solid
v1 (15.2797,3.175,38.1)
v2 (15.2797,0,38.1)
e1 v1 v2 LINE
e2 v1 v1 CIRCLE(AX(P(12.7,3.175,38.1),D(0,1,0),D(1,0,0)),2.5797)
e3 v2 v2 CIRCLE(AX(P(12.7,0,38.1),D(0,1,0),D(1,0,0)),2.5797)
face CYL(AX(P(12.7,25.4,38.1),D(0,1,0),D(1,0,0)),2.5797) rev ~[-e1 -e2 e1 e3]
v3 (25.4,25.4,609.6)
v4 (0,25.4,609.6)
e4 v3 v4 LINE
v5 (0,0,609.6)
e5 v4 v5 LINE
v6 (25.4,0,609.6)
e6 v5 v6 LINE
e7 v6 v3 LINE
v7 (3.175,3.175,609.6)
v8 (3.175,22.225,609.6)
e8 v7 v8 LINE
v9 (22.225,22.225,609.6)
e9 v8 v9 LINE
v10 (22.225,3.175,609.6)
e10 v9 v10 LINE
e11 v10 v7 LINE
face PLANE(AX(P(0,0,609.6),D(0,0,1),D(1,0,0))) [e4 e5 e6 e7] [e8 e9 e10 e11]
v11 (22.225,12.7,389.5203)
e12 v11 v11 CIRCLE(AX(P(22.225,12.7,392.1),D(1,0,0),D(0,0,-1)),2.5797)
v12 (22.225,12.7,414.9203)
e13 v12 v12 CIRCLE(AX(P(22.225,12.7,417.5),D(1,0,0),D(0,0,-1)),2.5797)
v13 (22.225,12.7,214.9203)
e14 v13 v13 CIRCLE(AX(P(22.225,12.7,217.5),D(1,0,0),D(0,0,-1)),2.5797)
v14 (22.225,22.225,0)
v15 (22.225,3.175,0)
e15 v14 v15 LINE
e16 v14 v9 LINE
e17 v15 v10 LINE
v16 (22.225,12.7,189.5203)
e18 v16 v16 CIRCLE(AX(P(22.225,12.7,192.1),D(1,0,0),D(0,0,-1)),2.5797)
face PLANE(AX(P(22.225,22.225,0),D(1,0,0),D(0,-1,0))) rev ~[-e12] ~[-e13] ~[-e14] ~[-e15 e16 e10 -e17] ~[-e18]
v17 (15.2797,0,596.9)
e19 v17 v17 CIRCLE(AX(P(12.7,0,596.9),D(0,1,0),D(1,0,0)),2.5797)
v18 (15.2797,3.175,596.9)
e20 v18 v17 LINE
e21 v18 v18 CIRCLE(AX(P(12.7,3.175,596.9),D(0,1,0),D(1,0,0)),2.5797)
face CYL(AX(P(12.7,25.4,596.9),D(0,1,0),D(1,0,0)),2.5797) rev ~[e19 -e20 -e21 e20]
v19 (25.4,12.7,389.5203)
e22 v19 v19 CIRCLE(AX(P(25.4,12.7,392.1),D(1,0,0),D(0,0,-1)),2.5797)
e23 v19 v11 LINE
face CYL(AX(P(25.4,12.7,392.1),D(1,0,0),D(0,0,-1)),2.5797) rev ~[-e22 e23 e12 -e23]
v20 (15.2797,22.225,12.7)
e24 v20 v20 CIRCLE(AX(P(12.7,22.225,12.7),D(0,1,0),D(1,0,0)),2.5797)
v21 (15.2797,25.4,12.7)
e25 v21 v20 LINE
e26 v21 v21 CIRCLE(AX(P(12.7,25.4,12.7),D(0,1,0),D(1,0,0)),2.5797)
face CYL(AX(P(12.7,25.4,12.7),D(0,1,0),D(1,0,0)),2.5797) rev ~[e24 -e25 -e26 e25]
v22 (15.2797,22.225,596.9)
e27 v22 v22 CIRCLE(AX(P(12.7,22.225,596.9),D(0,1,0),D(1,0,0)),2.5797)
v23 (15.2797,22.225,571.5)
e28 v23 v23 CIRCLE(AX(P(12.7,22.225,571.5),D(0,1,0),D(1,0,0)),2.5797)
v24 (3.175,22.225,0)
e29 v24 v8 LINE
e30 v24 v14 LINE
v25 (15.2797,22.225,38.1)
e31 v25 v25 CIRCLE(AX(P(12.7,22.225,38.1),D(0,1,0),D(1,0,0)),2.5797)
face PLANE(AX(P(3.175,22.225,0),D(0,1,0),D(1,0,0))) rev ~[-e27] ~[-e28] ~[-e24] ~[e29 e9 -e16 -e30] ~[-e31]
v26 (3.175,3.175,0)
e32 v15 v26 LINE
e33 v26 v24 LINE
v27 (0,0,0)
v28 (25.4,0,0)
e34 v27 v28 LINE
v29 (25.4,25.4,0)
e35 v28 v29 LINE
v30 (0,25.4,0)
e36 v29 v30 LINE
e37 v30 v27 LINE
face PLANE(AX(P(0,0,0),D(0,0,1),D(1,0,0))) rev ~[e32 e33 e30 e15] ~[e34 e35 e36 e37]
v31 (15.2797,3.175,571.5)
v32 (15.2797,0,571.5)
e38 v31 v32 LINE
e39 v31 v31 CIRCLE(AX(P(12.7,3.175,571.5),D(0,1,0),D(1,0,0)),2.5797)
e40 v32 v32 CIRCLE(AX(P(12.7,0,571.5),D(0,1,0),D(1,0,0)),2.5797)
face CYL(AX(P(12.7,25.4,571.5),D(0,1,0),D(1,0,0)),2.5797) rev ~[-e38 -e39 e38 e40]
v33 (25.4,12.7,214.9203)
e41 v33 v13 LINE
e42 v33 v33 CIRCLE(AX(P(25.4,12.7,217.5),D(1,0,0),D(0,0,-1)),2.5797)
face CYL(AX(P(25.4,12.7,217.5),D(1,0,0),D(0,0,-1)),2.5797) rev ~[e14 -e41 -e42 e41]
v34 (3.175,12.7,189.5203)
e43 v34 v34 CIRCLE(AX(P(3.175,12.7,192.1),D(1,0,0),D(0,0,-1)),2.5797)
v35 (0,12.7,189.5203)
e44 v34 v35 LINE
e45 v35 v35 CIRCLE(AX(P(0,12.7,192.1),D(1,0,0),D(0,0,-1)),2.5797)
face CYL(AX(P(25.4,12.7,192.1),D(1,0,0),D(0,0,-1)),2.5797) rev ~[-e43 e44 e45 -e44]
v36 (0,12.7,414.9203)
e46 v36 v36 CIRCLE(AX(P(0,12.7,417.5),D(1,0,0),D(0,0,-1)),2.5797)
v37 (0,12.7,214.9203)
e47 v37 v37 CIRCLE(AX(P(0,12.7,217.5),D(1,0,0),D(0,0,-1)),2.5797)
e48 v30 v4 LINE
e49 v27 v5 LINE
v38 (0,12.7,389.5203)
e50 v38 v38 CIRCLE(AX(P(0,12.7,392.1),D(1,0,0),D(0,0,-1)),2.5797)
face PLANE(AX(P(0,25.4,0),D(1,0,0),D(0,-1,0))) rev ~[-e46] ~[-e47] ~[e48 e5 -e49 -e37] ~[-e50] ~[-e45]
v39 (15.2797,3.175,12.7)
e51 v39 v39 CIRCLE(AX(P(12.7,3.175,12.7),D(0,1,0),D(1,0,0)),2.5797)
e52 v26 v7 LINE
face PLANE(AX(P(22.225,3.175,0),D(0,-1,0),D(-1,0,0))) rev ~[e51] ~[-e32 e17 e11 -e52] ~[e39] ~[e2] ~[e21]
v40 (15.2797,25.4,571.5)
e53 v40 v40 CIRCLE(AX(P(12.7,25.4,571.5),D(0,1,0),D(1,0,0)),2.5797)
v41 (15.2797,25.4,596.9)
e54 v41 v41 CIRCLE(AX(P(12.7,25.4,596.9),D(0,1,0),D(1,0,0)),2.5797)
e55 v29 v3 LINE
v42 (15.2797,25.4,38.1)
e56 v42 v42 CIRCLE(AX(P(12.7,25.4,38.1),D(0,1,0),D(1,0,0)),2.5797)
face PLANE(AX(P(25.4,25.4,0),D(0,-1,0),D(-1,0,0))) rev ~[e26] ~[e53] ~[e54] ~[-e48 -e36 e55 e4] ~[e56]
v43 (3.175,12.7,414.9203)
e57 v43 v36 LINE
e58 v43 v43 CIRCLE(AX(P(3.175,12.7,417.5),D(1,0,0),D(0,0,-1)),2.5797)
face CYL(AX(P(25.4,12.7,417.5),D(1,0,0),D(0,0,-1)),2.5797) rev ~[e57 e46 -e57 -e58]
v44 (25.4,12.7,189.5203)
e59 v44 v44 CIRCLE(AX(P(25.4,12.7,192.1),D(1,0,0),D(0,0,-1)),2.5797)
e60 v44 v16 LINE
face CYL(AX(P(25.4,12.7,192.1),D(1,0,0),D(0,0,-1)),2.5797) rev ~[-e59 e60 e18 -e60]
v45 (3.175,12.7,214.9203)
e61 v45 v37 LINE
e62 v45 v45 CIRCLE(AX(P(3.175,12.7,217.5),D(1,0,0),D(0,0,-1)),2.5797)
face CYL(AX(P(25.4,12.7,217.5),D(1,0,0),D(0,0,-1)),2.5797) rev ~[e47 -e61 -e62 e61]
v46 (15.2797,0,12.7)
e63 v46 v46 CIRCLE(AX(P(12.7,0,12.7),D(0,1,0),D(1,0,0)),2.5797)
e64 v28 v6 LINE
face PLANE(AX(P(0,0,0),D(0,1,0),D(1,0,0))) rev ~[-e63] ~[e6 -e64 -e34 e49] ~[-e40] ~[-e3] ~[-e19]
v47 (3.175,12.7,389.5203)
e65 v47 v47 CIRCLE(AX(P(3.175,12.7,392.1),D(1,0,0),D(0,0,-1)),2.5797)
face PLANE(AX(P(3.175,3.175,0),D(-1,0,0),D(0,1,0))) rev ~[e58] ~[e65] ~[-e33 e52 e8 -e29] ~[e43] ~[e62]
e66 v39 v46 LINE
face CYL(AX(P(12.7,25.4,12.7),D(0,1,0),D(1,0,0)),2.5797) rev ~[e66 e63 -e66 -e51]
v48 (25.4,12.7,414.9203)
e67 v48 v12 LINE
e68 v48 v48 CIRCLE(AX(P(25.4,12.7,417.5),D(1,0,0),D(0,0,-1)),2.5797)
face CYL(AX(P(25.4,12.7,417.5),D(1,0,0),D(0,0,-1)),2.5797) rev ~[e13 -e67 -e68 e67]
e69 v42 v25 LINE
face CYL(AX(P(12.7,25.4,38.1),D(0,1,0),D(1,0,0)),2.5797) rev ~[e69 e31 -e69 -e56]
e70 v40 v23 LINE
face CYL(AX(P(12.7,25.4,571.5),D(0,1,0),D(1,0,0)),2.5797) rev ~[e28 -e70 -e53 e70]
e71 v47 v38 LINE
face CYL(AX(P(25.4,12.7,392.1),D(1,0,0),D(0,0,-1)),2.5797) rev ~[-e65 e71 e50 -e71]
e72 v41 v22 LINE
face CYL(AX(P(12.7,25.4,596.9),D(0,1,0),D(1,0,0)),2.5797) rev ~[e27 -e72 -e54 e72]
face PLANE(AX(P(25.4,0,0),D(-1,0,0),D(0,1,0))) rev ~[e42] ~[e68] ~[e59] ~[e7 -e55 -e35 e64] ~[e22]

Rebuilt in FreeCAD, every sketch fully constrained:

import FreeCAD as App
import Part
import Sketcher
Q = App.Units.Quantity


def add_polygon(sketch, points):
    """Adds a closed chain of lines whose ends are joined by coincident constraints."""
    first, n = sketch.GeometryCount, len(points)
    for a, b in zip(points, points[1:] + points[:1]):
        sketch.addGeometry(Part.LineSegment(App.Vector(*a, 0), App.Vector(*b, 0)), False)
    for i in range(n):
        sketch.addConstraint(Sketcher.Constraint("Coincident", first + i, 2, first + (i + 1) % n, 1))

doc = App.newDocument("Part")
body = doc.addObject("PartDesign::Body", "Body")

# Sketch on XY plane
sketch1 = doc.addObject("Sketcher::SketchObject", "Sketch")
body.addObject(sketch1)
sketch1.AttachmentSupport = (doc.XY_Plane, [""])
sketch1.MapMode = "FlatFace"
add_polygon(sketch1, [(0, 25), (0, 0), (25, 0), (25, 25)])  # lines 0-3
add_polygon(sketch1, [(3, 3), (3, 22), (22, 22), (22, 3)])  # lines 4-7
sketch1.addConstraint(Sketcher.Constraint("Vertical", 0))
sketch1.addConstraint(Sketcher.Constraint("Horizontal", 1))
sketch1.addConstraint(Sketcher.Constraint("Vertical", 2))
sketch1.addConstraint(Sketcher.Constraint("Horizontal", 3))
sketch1.addConstraint(Sketcher.Constraint("Vertical", 4))
sketch1.addConstraint(Sketcher.Constraint("Horizontal", 5))
sketch1.addConstraint(Sketcher.Constraint("Vertical", 6))
sketch1.addConstraint(Sketcher.Constraint("Horizontal", 7))
sketch1.addConstraint(Sketcher.Constraint("Coincident", 0, 2, -1, 1))
sketch1.addConstraint(Sketcher.Constraint("Equal", 3, 0))
sketch1.addConstraint(Sketcher.Constraint("Equal", 7, 4))
sketch1.addConstraint(Sketcher.Constraint("DistanceX", 1, 1, 1, 2, Q("1 in")))
sketch1.addConstraint(Sketcher.Constraint("DistanceX", -1, 1, 4, 2, Q("0.125 in")))
sketch1.addConstraint(Sketcher.Constraint("DistanceY", -1, 1, 6, 2, Q("0.125 in")))
sketch1.addConstraint(Sketcher.Constraint("DistanceY", 4, 2, 3, 2, Q("0.125 in")))
pad1 = doc.addObject("PartDesign::Pad", "Pad")
body.addObject(pad1)
pad1.Profile = sketch1
pad1.Length = Q("24 in")

# Sketch on XZ plane
sketch2 = doc.addObject("Sketcher::SketchObject", "Sketch001")
body.addObject(sketch2)
sketch2.AttachmentSupport = (doc.XZ_Plane, [""])
sketch2.MapMode = "FlatFace"
sketch2.AttachmentOffset = App.Placement(App.Vector(0, 0, -1 * 25.4), App.Rotation())
sketch2.addGeometry(Part.Circle(App.Vector(12.7, 38.1, 0), App.Vector(0, 0, 1), 2.6), False)
sketch2.addGeometry(Part.Circle(App.Vector(12.7, 12.7, 0), App.Vector(0, 0, 1), 2.6), False)
sketch2.addGeometry(Part.Circle(App.Vector(12.7, 571.5, 0), App.Vector(0, 0, 1), 2.6), False)
sketch2.addGeometry(Part.Circle(App.Vector(12.7, 596.9, 0), App.Vector(0, 0, 1), 2.6), False)
sketch2.addConstraint(Sketcher.Constraint("Equal", 0, 1))
sketch2.addConstraint(Sketcher.Constraint("Equal", 1, 2))
sketch2.addConstraint(Sketcher.Constraint("Equal", 2, 3))
sketch2.addConstraint(Sketcher.Constraint("Vertical", 0, 3, 1, 3))
sketch2.addConstraint(Sketcher.Constraint("Vertical", 1, 3, 2, 3))
sketch2.addConstraint(Sketcher.Constraint("Vertical", 2, 3, 3, 3))
sketch2.addConstraint(Sketcher.Constraint("Diameter", 0, Q("0.203126 in")))
sketch2.addConstraint(Sketcher.Constraint("DistanceY", 1, 3, 0, 3, Q("1 in")))
sketch2.addConstraint(Sketcher.Constraint("DistanceY", 2, 3, 3, 3, Q("1 in")))
sketch2.addConstraint(Sketcher.Constraint("DistanceX", -1, 1, 0, 3, Q("0.5 in")))
sketch2.addConstraint(Sketcher.Constraint("DistanceY", -1, 1, 1, 3, Q("0.5 in")))
sketch2.addConstraint(Sketcher.Constraint("DistanceY", 0, 3, 2, 3, Q("21 in")))
pocket1 = doc.addObject("PartDesign::Pocket", "Pocket")
body.addObject(pocket1)
pocket1.Profile = sketch2
pocket1.Length = Q("24 in")
pocket1.Reversed = True

# Sketch on YZ plane
sketch3 = doc.addObject("Sketcher::SketchObject", "Sketch002")
body.addObject(sketch3)
sketch3.AttachmentSupport = (doc.YZ_Plane, [""])
sketch3.MapMode = "FlatFace"
sketch3.AttachmentOffset = App.Placement(App.Vector(0, 0, 1 * 25.4), App.Rotation())
sketch3.addGeometry(Part.Circle(App.Vector(12.7, 217.5, 0), App.Vector(0, 0, 1), 2.6), False)
sketch3.addGeometry(Part.Circle(App.Vector(12.7, 192.1, 0), App.Vector(0, 0, 1), 2.6), False)
sketch3.addGeometry(Part.Circle(App.Vector(12.7, 392.1, 0), App.Vector(0, 0, 1), 2.6), False)
sketch3.addGeometry(Part.Circle(App.Vector(12.7, 417.5, 0), App.Vector(0, 0, 1), 2.6), False)
sketch3.addConstraint(Sketcher.Constraint("Equal", 0, 1))
sketch3.addConstraint(Sketcher.Constraint("Equal", 1, 2))
sketch3.addConstraint(Sketcher.Constraint("Equal", 2, 3))
sketch3.addConstraint(Sketcher.Constraint("Vertical", 0, 3, 1, 3))
sketch3.addConstraint(Sketcher.Constraint("Vertical", 1, 3, 2, 3))
sketch3.addConstraint(Sketcher.Constraint("Vertical", 2, 3, 3, 3))
sketch3.addConstraint(Sketcher.Constraint("Diameter", 0, Q("0.203126 in")))
sketch3.addConstraint(Sketcher.Constraint("DistanceY", 1, 3, 0, 3, Q("1 in")))
sketch3.addConstraint(Sketcher.Constraint("DistanceY", 2, 3, 3, 3, Q("1 in")))
sketch3.addConstraint(Sketcher.Constraint("DistanceX", -1, 1, 0, 3, Q("0.5 in")))
sketch3.addConstraint(Sketcher.Constraint("DistanceY", -1, 1, 0, 3, Q("8.563 in")))
sketch3.addConstraint(Sketcher.Constraint("DistanceY", -1, 1, 2, 3, Q("15.437 in")))
pocket2 = doc.addObject("PartDesign::Pocket", "Pocket001")
body.addObject(pocket2)
pocket2.Profile = sketch3
pocket2.Length = Q("1 in")

doc.recompute()
